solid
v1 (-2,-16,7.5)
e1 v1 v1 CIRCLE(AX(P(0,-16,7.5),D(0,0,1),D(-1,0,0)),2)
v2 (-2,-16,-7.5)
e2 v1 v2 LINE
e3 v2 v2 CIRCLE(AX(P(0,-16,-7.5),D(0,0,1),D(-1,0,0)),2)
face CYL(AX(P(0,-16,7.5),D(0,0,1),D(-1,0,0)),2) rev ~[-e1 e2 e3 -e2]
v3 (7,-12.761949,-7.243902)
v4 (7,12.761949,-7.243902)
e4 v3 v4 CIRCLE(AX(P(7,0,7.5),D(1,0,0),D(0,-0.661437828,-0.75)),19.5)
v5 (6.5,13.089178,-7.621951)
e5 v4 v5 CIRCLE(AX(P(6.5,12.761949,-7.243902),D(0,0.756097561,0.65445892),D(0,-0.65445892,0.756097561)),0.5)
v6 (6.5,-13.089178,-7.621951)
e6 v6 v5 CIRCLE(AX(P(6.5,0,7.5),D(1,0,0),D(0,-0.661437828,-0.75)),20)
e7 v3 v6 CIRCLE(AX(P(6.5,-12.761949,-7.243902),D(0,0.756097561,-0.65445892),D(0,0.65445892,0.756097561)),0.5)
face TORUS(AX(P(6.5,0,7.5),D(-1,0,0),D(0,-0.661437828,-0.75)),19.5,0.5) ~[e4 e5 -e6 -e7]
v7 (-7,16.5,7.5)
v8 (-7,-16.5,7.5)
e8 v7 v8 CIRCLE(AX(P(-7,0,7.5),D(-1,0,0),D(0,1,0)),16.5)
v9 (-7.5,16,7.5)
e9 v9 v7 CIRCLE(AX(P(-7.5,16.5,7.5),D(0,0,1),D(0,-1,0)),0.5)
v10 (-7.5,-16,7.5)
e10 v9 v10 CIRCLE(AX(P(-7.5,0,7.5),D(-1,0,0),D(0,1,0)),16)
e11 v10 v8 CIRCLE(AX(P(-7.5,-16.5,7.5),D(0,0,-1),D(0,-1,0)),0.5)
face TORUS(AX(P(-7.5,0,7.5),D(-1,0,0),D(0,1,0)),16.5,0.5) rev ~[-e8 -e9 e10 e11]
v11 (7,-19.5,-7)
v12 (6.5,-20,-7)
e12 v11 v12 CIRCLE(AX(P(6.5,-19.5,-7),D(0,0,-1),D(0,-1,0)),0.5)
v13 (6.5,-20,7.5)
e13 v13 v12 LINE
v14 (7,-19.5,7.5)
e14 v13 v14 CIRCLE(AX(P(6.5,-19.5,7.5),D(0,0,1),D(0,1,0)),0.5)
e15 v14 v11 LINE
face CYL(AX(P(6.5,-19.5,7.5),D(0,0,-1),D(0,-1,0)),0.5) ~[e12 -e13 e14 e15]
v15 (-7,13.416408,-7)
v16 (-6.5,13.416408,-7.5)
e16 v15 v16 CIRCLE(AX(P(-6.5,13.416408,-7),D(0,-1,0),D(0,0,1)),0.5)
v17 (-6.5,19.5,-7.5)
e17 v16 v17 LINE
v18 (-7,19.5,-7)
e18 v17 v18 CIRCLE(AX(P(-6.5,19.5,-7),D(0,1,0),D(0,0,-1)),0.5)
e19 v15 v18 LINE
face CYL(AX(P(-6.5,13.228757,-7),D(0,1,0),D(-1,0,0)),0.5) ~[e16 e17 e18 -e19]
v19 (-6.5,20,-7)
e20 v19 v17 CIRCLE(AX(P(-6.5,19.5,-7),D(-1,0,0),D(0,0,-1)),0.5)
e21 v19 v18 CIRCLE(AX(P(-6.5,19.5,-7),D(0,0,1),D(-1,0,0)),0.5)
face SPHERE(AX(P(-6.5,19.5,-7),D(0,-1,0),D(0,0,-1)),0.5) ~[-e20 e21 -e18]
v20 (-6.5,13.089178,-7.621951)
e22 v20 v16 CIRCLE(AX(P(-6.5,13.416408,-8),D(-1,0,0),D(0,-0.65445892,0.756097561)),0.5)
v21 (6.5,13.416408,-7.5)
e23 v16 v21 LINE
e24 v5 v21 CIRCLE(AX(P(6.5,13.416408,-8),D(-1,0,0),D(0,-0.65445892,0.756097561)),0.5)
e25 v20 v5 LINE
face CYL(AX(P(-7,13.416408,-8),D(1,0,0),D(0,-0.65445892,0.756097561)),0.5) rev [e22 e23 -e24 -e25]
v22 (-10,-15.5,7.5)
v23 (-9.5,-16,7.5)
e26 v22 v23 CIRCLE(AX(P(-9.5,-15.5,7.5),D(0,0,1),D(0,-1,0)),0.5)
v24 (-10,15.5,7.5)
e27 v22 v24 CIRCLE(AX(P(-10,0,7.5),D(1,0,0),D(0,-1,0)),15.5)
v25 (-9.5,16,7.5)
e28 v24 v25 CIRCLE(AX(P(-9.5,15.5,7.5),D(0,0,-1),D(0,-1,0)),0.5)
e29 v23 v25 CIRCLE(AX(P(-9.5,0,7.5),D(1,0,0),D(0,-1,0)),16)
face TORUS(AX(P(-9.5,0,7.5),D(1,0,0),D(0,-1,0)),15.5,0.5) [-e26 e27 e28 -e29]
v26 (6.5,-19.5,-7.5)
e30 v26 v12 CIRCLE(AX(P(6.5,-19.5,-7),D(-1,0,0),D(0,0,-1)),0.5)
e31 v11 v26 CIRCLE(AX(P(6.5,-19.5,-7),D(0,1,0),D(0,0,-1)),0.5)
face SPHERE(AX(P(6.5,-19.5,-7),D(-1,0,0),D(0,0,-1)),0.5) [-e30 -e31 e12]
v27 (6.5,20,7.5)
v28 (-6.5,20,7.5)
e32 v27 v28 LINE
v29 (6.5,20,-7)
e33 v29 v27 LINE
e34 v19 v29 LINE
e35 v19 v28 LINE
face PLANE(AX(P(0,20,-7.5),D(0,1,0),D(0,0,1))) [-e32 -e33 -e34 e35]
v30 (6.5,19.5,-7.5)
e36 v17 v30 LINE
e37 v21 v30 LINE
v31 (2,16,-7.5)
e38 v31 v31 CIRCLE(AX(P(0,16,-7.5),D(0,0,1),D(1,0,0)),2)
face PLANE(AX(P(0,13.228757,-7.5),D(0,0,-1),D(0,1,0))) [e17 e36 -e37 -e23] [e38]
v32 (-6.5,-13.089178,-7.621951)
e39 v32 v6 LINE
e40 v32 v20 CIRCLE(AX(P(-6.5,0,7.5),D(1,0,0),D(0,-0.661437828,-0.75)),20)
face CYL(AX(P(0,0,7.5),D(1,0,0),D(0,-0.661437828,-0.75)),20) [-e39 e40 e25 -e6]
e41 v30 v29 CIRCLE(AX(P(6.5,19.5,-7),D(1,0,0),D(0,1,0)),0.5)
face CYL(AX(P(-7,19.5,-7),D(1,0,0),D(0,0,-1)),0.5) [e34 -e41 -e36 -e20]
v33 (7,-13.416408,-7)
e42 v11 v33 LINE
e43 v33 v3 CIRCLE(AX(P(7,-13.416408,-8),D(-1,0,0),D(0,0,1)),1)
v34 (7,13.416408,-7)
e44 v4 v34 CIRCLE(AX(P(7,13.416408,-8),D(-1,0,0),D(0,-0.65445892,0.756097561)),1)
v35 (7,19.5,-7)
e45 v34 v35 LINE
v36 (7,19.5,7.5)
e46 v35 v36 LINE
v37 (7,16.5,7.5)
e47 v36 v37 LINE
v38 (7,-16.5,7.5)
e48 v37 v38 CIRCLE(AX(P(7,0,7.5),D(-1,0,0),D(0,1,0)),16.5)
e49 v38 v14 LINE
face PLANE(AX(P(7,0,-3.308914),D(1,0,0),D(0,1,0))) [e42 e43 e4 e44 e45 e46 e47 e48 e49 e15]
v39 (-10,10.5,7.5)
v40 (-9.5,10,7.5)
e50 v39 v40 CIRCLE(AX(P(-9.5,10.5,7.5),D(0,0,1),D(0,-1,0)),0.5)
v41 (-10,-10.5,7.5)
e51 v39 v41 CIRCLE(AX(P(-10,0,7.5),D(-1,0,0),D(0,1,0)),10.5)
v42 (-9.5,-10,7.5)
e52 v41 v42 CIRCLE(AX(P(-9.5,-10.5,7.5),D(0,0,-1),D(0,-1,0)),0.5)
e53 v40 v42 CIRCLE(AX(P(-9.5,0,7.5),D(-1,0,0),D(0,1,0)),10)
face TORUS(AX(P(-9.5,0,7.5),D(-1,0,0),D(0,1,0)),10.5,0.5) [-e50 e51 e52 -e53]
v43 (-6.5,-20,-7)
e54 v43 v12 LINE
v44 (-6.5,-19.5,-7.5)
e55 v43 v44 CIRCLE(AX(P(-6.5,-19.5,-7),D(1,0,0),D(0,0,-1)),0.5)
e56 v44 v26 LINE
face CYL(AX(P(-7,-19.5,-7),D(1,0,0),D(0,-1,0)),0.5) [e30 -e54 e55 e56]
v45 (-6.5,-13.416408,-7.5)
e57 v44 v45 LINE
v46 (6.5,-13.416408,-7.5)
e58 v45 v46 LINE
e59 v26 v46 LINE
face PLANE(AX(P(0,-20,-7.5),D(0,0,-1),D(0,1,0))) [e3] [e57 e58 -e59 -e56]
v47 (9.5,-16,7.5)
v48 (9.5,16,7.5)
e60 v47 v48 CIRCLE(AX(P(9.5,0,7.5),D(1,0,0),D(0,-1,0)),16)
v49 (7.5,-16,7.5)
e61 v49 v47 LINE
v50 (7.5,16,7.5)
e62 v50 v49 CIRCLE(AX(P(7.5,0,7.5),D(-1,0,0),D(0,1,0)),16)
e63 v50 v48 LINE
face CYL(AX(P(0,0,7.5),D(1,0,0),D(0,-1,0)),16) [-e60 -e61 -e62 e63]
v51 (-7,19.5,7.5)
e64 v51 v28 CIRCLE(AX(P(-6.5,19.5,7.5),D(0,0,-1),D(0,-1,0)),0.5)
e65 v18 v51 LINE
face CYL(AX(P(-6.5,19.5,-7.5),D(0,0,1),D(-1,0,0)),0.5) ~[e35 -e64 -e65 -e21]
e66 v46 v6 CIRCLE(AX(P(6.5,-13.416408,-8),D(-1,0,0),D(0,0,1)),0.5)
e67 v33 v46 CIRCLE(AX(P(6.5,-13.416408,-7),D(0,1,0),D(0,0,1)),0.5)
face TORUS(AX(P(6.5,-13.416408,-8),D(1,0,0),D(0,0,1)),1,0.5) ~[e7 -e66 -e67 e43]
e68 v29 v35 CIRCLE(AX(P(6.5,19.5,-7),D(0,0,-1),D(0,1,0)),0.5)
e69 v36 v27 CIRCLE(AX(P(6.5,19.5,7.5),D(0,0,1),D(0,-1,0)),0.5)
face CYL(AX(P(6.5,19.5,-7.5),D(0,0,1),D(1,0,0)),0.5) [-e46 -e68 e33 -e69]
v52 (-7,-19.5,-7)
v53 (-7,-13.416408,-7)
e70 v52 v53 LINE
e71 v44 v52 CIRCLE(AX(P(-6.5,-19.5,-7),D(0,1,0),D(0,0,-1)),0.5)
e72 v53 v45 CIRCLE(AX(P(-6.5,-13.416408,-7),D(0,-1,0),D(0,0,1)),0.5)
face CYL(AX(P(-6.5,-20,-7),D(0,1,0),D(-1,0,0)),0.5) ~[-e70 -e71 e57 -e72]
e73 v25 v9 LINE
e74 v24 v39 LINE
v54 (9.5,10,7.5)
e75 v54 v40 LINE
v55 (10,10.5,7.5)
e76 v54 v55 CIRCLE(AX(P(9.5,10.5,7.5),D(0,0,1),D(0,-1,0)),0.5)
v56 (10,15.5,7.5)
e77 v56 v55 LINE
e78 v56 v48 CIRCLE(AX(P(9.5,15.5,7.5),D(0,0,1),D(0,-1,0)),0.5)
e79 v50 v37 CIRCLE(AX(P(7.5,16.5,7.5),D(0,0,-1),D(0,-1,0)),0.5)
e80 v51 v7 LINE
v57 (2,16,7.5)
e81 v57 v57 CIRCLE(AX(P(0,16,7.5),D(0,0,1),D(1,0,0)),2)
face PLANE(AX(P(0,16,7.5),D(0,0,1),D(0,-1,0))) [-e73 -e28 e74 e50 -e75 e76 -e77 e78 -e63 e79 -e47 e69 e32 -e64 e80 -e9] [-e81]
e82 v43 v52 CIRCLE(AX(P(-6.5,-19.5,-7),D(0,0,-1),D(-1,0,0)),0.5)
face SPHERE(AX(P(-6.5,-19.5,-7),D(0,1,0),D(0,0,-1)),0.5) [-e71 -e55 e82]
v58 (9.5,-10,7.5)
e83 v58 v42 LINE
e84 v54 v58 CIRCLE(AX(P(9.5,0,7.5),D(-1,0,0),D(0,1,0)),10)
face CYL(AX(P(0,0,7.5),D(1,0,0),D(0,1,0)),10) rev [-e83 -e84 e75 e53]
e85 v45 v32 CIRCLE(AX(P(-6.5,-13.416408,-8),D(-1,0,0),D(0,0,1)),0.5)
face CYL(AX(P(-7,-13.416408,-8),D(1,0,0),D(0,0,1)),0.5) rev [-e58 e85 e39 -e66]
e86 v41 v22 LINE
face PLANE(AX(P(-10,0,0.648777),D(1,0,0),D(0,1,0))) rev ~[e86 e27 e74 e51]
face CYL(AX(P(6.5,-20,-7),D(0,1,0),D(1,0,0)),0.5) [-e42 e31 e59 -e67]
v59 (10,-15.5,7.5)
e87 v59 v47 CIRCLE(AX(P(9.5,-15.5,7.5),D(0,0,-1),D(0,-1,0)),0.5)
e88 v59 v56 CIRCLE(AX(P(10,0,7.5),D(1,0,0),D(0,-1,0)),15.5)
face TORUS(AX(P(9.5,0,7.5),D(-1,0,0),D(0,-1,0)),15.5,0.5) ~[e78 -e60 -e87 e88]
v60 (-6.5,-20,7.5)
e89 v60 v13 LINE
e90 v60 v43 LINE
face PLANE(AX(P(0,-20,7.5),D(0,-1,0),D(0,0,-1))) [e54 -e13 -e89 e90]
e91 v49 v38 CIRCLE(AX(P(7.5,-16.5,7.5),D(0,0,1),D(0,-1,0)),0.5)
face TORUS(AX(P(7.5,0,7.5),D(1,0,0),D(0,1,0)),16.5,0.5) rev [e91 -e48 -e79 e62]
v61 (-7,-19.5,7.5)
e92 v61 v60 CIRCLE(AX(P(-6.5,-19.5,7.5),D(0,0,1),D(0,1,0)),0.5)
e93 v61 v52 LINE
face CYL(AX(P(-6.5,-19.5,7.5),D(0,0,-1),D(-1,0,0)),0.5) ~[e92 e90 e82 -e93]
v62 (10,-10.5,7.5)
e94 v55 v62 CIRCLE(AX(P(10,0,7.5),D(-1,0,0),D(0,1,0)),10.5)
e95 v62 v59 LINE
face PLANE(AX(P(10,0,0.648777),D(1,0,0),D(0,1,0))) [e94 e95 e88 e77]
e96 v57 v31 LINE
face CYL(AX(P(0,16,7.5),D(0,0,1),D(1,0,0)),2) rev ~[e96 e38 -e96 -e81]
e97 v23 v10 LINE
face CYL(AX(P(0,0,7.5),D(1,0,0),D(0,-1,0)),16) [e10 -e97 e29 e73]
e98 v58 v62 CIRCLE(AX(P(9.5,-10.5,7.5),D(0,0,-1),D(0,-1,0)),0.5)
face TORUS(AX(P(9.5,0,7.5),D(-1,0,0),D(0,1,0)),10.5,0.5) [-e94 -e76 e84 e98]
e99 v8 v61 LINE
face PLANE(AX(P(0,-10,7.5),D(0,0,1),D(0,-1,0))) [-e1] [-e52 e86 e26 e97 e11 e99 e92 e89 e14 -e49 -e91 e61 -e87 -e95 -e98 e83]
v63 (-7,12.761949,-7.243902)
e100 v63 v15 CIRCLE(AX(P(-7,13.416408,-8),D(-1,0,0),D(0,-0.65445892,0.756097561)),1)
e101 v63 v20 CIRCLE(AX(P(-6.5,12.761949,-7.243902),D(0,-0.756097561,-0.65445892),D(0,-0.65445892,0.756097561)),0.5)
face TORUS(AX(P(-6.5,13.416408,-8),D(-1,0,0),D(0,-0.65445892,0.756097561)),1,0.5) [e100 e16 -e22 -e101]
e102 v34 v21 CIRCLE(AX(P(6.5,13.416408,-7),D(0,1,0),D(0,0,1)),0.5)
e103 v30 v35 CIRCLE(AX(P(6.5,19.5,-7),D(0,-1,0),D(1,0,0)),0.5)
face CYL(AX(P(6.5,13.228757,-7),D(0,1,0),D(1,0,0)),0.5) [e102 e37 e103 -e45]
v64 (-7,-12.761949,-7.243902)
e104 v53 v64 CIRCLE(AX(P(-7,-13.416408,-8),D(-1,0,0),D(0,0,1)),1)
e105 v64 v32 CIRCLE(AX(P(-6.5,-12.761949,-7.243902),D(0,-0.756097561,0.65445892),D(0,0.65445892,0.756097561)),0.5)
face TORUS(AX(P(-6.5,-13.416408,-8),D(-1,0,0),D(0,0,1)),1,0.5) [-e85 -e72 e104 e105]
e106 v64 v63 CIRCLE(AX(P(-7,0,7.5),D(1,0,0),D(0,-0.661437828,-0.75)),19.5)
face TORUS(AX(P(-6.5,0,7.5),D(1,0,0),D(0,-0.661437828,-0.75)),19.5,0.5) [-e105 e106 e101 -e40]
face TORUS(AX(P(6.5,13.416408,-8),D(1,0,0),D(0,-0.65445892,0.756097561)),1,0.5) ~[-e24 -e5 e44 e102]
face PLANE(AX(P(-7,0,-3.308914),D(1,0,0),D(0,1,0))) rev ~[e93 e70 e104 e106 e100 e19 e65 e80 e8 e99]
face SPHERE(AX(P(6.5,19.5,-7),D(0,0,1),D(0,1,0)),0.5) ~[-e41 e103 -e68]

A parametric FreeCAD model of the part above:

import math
import FreeCAD as App
import Part
import Sketcher

V = App.Vector
Q = App.Units.Quantity


def edges_at(feature, points):
    """Names of the edges that pass closest to the given points."""
    edges = feature.Shape.Edges
    near = lambda p: min(range(len(edges)), key=lambda i: edges[i].distToShape(Part.Vertex(*p))[0])
    return sorted({f"Edge{near(p) + 1}" for p in points})

doc = App.newDocument("Part")
body = doc.addObject("PartDesign::Body", "Body")

sketch1 = doc.addObject("Sketcher::SketchObject", "Sketch")
body.addObject(sketch1)
sketch1.AttachmentSupport = (doc.YZ_Plane, [""])
sketch1.MapMode = "FlatFace"
sketch1.addGeometry(Part.LineSegment(V(-10, 8, 0), V(-16, 8, 0)), False)
sketch1.addGeometry(Part.ArcOfCircle(Part.Circle(V(0, 8, 0), V(0, 0, 1), 16), math.radians(180), math.radians(360)), False)
sketch1.addGeometry(Part.LineSegment(V(16, 8, 0), V(10, 8, 0)), False)
sketch1.addGeometry(Part.ArcOfCircle(Part.Circle(V(0, 8, 0), V(0, 0, 1), 10), math.radians(180), math.radians(360)), False)
sketch1.addConstraint(Sketcher.Constraint("Coincident", 0, 2, 1, 1))
sketch1.addConstraint(Sketcher.Constraint("Coincident", 1, 2, 2, 1))
sketch1.addConstraint(Sketcher.Constraint("Coincident", 2, 2, 3, 2))
sketch1.addConstraint(Sketcher.Constraint("Coincident", 3, 1, 0, 1))
sketch1.addConstraint(Sketcher.Constraint("Horizontal", 0))
sketch1.addConstraint(Sketcher.Constraint("Horizontal", 2))
sketch1.addConstraint(Sketcher.Constraint("Coincident", 3, 3, 1, 3))
sketch1.addConstraint(Sketcher.Constraint("Symmetric", 0, 2, 1, 2, -2))
sketch1.addConstraint(Sketcher.Constraint("Horizontal", 3, 3, 0, 2))
sketch1.addConstraint(Sketcher.Constraint("Radius", 1, Q("16 mm")))
sketch1.addConstraint(Sketcher.Constraint("Radius", 3, Q("10 mm")))
sketch1.addConstraint(Sketcher.Constraint("DistanceY", -1, 1, 1, 3, Q("7.5 mm")))
pad1 = doc.addObject("PartDesign::Pad", "Pad")
body.addObject(pad1)
pad1.Profile = sketch1
pad1.Length = 20
pad1.Midplane = True

sketch2 = doc.addObject("Sketcher::SketchObject", "Sketch001")
body.addObject(sketch2)
sketch2.AttachmentSupport = (doc.YZ_Plane, [""])
sketch2.MapMode = "FlatFace"
sketch2.addGeometry(Part.LineSegment(V(-16, 7.5, 0), V(-20, 7.5, 0)), False)
sketch2.addGeometry(Part.LineSegment(V(-20, 7.5, 0), V(-20, -7.5, 0)), False)
sketch2.addGeometry(Part.LineSegment(V(-20, -7.5, 0), V(-13.2, -7.5, 0)), False)
sketch2.addGeometry(Part.ArcOfCircle(Part.Circle(V(0, 7.5, 0), V(0, 0, 1), 20), math.radians(-131), math.radians(-49)), False)
sketch2.addGeometry(Part.LineSegment(V(13.2, -7.5, 0), V(20, -7.5, 0)), False)
sketch2.addGeometry(Part.LineSegment(V(20, -7.5, 0), V(20, 7.5, 0)), False)
sketch2.addGeometry(Part.LineSegment(V(20, 7.5, 0), V(16, 7.5, 0)), False)
sketch2.addGeometry(Part.ArcOfCircle(Part.Circle(V(0, 7.5, 0), V(0, 0, 1), 16), math.radians(180), math.radians(360)), False)
sketch2.addConstraint(Sketcher.Constraint("Coincident", 0, 2, 1, 1))
sketch2.addConstraint(Sketcher.Constraint("Coincident", 1, 2, 2, 1))
sketch2.addConstraint(Sketcher.Constraint("Coincident", 2, 2, 3, 1))
sketch2.addConstraint(Sketcher.Constraint("Coincident", 3, 2, 4, 1))
sketch2.addConstraint(Sketcher.Constraint("Coincident", 4, 2, 5, 1))
sketch2.addConstraint(Sketcher.Constraint("Coincident", 5, 2, 6, 1))
sketch2.addConstraint(Sketcher.Constraint("Coincident", 6, 2, 7, 2))
sketch2.addConstraint(Sketcher.Constraint("Coincident", 7, 1, 0, 1))
sketch2.addConstraint(Sketcher.Constraint("Horizontal", 0))
sketch2.addConstraint(Sketcher.Constraint("Vertical", 1))
sketch2.addConstraint(Sketcher.Constraint("Horizontal", 2))
sketch2.addConstraint(Sketcher.Constraint("Horizontal", 4))
sketch2.addConstraint(Sketcher.Constraint("Vertical", 5))
sketch2.addConstraint(Sketcher.Constraint("Horizontal", 6))
sketch2.addConstraint(Sketcher.Constraint("Coincident", 7, 3, 3, 3))
sketch2.addConstraint(Sketcher.Constraint("Symmetric", 0, 2, 4, 2, -1, 1))
sketch2.addConstraint(Sketcher.Constraint("Symmetric", 2, 2, 3, 2, -2))
sketch2.addConstraint(Sketcher.Constraint("Horizontal", 7, 3, 0, 2))
sketch2.addConstraint(Sketcher.Constraint("Horizontal", 0, 2, 5, 2))
sketch2.addConstraint(Sketcher.Constraint("Radius", 3, Q("20 mm")))
sketch2.addConstraint(Sketcher.Constraint("Radius", 7, Q("16 mm")))
sketch2.addConstraint(Sketcher.Constraint("DistanceX", 0, 2, 0, 1, Q("4 mm")))
sketch2.addConstraint(Sketcher.Constraint("DistanceY", 1, 2, 1, 1, Q("15 mm")))
pad2 = doc.addObject("PartDesign::Pad", "Pad001")
body.addObject(pad2)
pad2.Profile = sketch2
pad2.Length = 14
pad2.Midplane = True

sketch3 = doc.addObject("Sketcher::SketchObject", "Sketch002")
body.addObject(sketch3)
sketch3.AttachmentSupport = (doc.XY_Plane, [""])
sketch3.MapMode = "FlatFace"
sketch3.AttachmentOffset = App.Placement(V(0, 0, 7.5), App.Rotation())
sketch3.addGeometry(Part.Circle(V(0, 16, 0), V(0, 0, 1), 2), False)
sketch3.addGeometry(Part.Circle(V(0, -16, 0), V(0, 0, 1), 2), False)
sketch3.addConstraint(Sketcher.Constraint("Equal", 0, 1))
sketch3.addConstraint(Sketcher.Constraint("Symmetric", 0, 3, 1, 3, -1, 1))
sketch3.addConstraint(Sketcher.Constraint("PointOnObject", 0, 3, -2))
sketch3.addConstraint(Sketcher.Constraint("Diameter", 0, Q("4 mm")))
sketch3.addConstraint(Sketcher.Constraint("DistanceY", -1, 1, 0, 3, Q("16 mm")))
pocket1 = doc.addObject("PartDesign::Pocket", "Pocket")
body.addObject(pocket1)
pocket1.Profile = sketch3
pocket1.Length = 15
doc.recompute()

fillet = doc.addObject("PartDesign::Fillet", "Fillet")
body.addObject(fillet)
fillet.Base = (pocket1, edges_at(pocket1, [
    (10, 0, -8.5),
    (-7, -16.614, -7.5),
    (0, -20, -7.5),
    (-7, 0, -12.5),
    (0, -13.229, -7.5),
    (-7, 16.614, -7.5),
    (0, 13.229, -7.5),
    (7, 20, 0),
    (0, 20, -7.5),
    (10, 0, -2.5),
    (7, 0, -8.5),
    (-7, -20, 0),
    (7, -16.614, -7.5),
    (7, 0, -12.5),
    (7, 16.614, -7.5),
    (7, -20, 0),
    (-7, 0, -8.5),
    (-7, 20, 0),
    (-10, 0, -2.5),
    (-10, 0, -8.5),
]))
fillet.Radius = 0.5

doc.recompute()
